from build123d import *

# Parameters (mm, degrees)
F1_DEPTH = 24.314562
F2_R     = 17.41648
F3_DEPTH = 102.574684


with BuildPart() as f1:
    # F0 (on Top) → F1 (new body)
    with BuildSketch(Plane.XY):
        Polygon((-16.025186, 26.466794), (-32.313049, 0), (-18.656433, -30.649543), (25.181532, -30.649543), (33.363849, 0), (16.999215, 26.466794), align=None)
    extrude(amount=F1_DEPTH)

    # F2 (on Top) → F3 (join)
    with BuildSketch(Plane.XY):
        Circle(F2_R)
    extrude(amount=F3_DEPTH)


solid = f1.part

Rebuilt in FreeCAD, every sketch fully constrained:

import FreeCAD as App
import Part
import Sketcher
from FreeCAD import Vector
Q = App.Units.Quantity

doc = App.newDocument("Part")
body = doc.addObject("PartDesign::Body", "Body")

# Sketch on XY plane
sketch1 = body.newObject("Sketcher::SketchObject", "Sketch")
sketch1.AttachmentSupport = (doc.getObject("XY_Plane"), [""])
sketch1.MapMode = "FlatFace"
sketch1.addGeometry([
    Part.LineSegment(Vector(-16, 26, 0), Vector(-32, 0, 0)),  # 0
    Part.LineSegment(Vector(-32, 0, 0), Vector(-19, -31, 0)),  # 1
    Part.LineSegment(Vector(-19, -31, 0), Vector(25, -31, 0)),  # 2
    Part.LineSegment(Vector(25, -31, 0), Vector(33, 0, 0)),  # 3
    Part.LineSegment(Vector(33, 0, 0), Vector(17, 26, 0)),  # 4
    Part.LineSegment(Vector(17, 26, 0), Vector(-16, 26, 0)),  # 5
], False)
sketch1.addConstraint([
    Sketcher.Constraint("Coincident", 0, 2, 1, 1),
    Sketcher.Constraint("Coincident", 1, 2, 2, 1),
    Sketcher.Constraint("Coincident", 2, 2, 3, 1),
    Sketcher.Constraint("Coincident", 3, 2, 4, 1),
    Sketcher.Constraint("Coincident", 4, 2, 5, 1),
    Sketcher.Constraint("Coincident", 5, 2, 0, 1),
    Sketcher.Constraint("Horizontal", 2),
    Sketcher.Constraint("Horizontal", 5),
    Sketcher.Constraint("PointOnObject", 0, 2, -1),
    Sketcher.Constraint("PointOnObject", 3, 2, -1),
    Sketcher.Constraint("DistanceX", 5, 2, 5, 1, Q("33.024401 mm")),
    Sketcher.Constraint("Distance", 1, Q("33.554398 mm")),
    Sketcher.Constraint("Distance", 3, Q("31.722938 mm")),
    Sketcher.Constraint("DistanceX", 2, 1, 2, 2, Q("43.837965 mm")),
    Sketcher.Constraint("DistanceX", 0, 2, -1, 1, Q("32.313049 mm")),
    Sketcher.Constraint("DistanceX", -1, 1, 3, 2, Q("33.363849 mm")),
    Sketcher.Constraint("DistanceX", 5, 2, 2, 2, Q("41.206718 mm")),
    Sketcher.Constraint("Distance", 0, Q("31.077092 mm")),
])
pad1 = body.newObject("PartDesign::Pad", "Pad")
pad1.Profile = sketch1
pad1.Length = 24.314562

# Sketch on XY plane
sketch2 = body.newObject("Sketcher::SketchObject", "Sketch001")
sketch2.AttachmentSupport = (doc.getObject("XY_Plane"), [""])
sketch2.MapMode = "FlatFace"
sketch2.addGeometry(Part.Circle(Vector(0, 0, 0), Vector(0, 0, 1), 17), False)
sketch2.addConstraint([
    Sketcher.Constraint("Coincident", 0, 3, -1, 1),
    Sketcher.Constraint("Diameter", 0, Q("34.83296 mm")),
])
pad2 = body.newObject("PartDesign::Pad", "Pad001")
pad2.Profile = sketch2
pad2.Length = 102.574684

doc.recompute()
